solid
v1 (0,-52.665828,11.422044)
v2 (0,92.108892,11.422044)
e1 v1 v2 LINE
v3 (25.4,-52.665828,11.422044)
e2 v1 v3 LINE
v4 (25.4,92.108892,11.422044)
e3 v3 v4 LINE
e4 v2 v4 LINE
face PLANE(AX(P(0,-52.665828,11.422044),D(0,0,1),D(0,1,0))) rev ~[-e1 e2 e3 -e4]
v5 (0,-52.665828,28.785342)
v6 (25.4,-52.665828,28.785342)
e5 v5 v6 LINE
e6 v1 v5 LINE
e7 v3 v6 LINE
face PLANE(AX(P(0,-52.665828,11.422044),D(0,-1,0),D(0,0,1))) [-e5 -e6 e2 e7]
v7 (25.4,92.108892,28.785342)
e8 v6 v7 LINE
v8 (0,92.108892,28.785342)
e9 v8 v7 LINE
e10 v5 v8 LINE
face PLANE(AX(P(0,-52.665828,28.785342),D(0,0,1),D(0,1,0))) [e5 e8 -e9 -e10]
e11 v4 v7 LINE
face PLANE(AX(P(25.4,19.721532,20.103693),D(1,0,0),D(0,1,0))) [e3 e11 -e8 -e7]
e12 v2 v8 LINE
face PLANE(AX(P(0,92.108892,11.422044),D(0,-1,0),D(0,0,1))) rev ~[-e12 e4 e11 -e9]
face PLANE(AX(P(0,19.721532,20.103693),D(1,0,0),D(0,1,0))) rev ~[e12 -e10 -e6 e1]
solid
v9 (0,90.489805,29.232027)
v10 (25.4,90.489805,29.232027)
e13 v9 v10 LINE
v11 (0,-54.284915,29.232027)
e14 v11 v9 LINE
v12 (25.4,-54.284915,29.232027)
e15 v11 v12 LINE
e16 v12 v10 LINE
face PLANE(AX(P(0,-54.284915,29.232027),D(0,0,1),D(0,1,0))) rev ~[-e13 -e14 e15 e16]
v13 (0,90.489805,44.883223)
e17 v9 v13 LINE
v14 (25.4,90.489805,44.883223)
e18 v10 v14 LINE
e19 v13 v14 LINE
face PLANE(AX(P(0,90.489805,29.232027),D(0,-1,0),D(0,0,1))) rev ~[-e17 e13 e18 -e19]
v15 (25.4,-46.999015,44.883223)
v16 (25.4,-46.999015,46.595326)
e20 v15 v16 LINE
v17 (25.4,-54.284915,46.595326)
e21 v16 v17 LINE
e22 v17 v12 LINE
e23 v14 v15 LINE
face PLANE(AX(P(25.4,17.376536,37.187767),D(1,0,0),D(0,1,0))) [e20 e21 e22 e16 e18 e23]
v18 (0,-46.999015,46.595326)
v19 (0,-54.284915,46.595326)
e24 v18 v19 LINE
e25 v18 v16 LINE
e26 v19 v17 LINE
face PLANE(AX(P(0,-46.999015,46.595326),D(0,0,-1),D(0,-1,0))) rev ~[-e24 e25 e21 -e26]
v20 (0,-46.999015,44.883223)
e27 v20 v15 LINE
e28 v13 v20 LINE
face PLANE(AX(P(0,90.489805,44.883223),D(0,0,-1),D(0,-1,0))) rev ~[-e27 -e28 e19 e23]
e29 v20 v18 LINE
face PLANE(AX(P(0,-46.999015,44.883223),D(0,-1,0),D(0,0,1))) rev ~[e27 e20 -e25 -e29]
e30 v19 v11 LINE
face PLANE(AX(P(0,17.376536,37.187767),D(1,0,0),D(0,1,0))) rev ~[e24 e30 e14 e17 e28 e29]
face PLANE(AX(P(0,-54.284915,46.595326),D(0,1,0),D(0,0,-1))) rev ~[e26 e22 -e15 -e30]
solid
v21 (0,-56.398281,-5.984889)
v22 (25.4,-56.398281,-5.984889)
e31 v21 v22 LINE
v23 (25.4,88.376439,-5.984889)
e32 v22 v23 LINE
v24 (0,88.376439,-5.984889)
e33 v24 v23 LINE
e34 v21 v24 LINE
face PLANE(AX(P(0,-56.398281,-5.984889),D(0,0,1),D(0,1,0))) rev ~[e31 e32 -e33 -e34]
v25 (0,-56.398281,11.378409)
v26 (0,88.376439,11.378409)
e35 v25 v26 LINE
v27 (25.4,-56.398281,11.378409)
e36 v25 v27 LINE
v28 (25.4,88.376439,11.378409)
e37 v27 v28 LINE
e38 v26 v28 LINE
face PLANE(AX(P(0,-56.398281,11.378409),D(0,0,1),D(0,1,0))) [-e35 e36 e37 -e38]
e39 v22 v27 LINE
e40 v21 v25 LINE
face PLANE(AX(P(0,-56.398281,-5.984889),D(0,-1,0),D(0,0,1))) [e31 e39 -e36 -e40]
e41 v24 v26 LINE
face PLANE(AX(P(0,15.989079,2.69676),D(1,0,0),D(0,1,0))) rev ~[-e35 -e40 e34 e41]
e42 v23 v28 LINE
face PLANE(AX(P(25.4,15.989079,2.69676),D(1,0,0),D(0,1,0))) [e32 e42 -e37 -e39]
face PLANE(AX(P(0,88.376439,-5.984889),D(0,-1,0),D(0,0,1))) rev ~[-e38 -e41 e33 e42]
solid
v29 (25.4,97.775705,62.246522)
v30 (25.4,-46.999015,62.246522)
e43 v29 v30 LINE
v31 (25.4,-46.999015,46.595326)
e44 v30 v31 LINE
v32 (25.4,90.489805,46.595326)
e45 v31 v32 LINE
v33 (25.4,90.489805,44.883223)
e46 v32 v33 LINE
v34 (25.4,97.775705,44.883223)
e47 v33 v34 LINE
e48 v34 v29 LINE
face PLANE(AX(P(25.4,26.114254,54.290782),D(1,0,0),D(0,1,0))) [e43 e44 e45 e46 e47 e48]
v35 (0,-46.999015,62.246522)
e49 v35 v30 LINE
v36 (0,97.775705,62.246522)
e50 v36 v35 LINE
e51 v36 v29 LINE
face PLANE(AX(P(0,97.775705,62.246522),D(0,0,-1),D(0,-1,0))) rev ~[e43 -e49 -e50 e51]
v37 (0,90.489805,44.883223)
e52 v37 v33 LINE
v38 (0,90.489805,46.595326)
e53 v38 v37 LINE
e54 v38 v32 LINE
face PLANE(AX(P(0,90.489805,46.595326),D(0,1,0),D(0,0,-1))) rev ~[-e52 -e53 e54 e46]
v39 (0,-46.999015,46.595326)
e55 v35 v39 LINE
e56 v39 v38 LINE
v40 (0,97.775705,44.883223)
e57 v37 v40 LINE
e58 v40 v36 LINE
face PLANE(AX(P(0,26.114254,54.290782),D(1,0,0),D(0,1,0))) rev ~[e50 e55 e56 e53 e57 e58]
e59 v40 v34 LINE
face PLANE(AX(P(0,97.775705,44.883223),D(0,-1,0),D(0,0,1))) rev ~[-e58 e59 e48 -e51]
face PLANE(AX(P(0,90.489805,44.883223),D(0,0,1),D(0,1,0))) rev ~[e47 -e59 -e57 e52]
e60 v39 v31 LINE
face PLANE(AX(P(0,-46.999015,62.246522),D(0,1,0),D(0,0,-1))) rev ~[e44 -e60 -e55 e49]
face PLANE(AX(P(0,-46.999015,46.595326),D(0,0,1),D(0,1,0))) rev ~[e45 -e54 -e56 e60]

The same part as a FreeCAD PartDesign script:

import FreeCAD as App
import Part
import Sketcher

V = App.Vector
Q = App.Units.Quantity

doc = App.newDocument("Part")
params = doc.addObject("Spreadsheet::Sheet", "Params")
for row, (alias, value) in enumerate([
    ("pad1_length", "1 in"),
    ("pad2_length", "1 in"),
], start=1):
    params.set(f"A{row}", alias)
    params.set(f"B{row}", "=" + value)
    params.setAlias(f"B{row}", alias)

body = doc.addObject("PartDesign::Body", "Body")

# Sketch on YZ plane
sketch1 = body.newObject("Sketcher::SketchObject", "Sketch")
sketch1.AttachmentSupport = (doc.getObject("YZ_Plane"), [""])
sketch1.MapMode = "FlatFace"
sketch1.addGeometry([
    Part.LineSegment(V(-56.398281, 11.378409, 0), V(-56.398281, -5.984889, 0)),
    Part.LineSegment(V(-56.398281, -5.984889, 0), V(88.376439, -5.984889, 0)),
    Part.LineSegment(V(88.376439, -5.984889, 0), V(88.376439, 11.378409, 0)),
    Part.LineSegment(V(88.376439, 11.378409, 0), V(-56.398281, 11.378409, 0)),
], False)
sketch1.addConstraint([
    Sketcher.Constraint("Coincident", 0, 2, 1, 1),
    Sketcher.Constraint("Coincident", 1, 2, 2, 1),
    Sketcher.Constraint("Coincident", 2, 2, 3, 1),
    Sketcher.Constraint("Coincident", 3, 2, 0, 1),
    Sketcher.Constraint("Vertical", 0),
    Sketcher.Constraint("Horizontal", 1),
    Sketcher.Constraint("Vertical", 2),
    Sketcher.Constraint("Horizontal", 3),
    Sketcher.Constraint("DistanceY", 0, 2, 0, 1, Q("17.363298 mm")),
    Sketcher.Constraint("DistanceX", 1, 1, 1, 2, Q("144.77472 mm")),
    Sketcher.Constraint("DistanceX", 0, 2, -1, 1, Q("56.398281 mm")),
    Sketcher.Constraint("DistanceY", 0, 2, -1, 1, Q("5.984889 mm")),
])
pad1 = body.newObject("PartDesign::Pad", "Pad")
pad1.Profile = sketch1
pad1.setExpression("Length", "Params.pad1_length")
body2 = doc.addObject("PartDesign::Body", "Body001")
body2.AllowCompound = True

# Sketch on YZ plane
sketch2 = body2.newObject("Sketcher::SketchObject", "Sketch001")
sketch2.AttachmentSupport = (doc.getObject("YZ_Plane001"), [""])
sketch2.MapMode = "FlatFace"
sketch2.addGeometry([
    Part.LineSegment(V(-52.665828, 28.785342, 0), V(-52.665828, 11.422044, 0)),  # 0
    Part.LineSegment(V(-52.665828, 11.422044, 0), V(92.108892, 11.422044, 0)),  # 1
    Part.LineSegment(V(92.108892, 11.422044, 0), V(92.108892, 28.785342, 0)),  # 2
    Part.LineSegment(V(92.108892, 28.785342, 0), V(-52.665828, 28.785342, 0)),  # 3
    Part.LineSegment(V(-54.284915, 29.232027, 0), V(90.489805, 29.232027, 0)),  # 4
    Part.LineSegment(V(90.489805, 29.232027, 0), V(90.489805, 44.883223, 0)),  # 5
    Part.LineSegment(V(90.489805, 44.883223, 0), V(-46.999015, 44.883223, 0)),  # 6
    Part.LineSegment(V(-46.999015, 44.883223, 0), V(-46.999015, 46.595326, 0)),  # 7
    Part.LineSegment(V(-46.999015, 46.595326, 0), V(-54.284915, 46.595326, 0)),  # 8
    Part.LineSegment(V(-54.284915, 46.595326, 0), V(-54.284915, 29.232027, 0)),  # 9
    Part.LineSegment(V(90.489805, 46.595326, 0), V(90.489805, 44.883223, 0)),  # 10
    Part.LineSegment(V(90.489805, 44.883223, 0), V(97.775705, 44.883223, 0)),  # 11
    Part.LineSegment(V(97.775705, 44.883223, 0), V(97.775705, 62.246522, 0)),  # 12
    Part.LineSegment(V(97.775705, 62.246522, 0), V(-46.999015, 62.246522, 0)),  # 13
    Part.LineSegment(V(-46.999015, 62.246522, 0), V(-46.999015, 46.595326, 0)),  # 14
    Part.LineSegment(V(-46.999015, 46.595326, 0), V(90.489805, 46.595326, 0)),  # 15
], False)
sketch2.addConstraint([
    Sketcher.Constraint("Coincident", 0, 2, 1, 1),
    Sketcher.Constraint("Coincident", 1, 2, 2, 1),
    Sketcher.Constraint("Coincident", 2, 2, 3, 1),
    Sketcher.Constraint("Coincident", 3, 2, 0, 1),
    Sketcher.Constraint("Coincident", 4, 2, 5, 1),
    Sketcher.Constraint("Coincident", 5, 2, 6, 1),
    Sketcher.Constraint("Coincident", 6, 2, 7, 1),
    Sketcher.Constraint("Coincident", 7, 2, 8, 1),
    Sketcher.Constraint("Coincident", 8, 2, 9, 1),
    Sketcher.Constraint("Coincident", 9, 2, 4, 1),
    Sketcher.Constraint("Coincident", 10, 2, 11, 1),
    Sketcher.Constraint("Coincident", 11, 2, 12, 1),
    Sketcher.Constraint("Coincident", 12, 2, 13, 1),
    Sketcher.Constraint("Coincident", 13, 2, 14, 1),
    Sketcher.Constraint("Coincident", 14, 2, 15, 1),
    Sketcher.Constraint("Coincident", 15, 2, 10, 1),
    Sketcher.Constraint("Vertical", 0),
    Sketcher.Constraint("Horizontal", 1),
    Sketcher.Constraint("Vertical", 2),
    Sketcher.Constraint("Horizontal", 3),
    Sketcher.Constraint("Horizontal", 4),
    Sketcher.Constraint("Vertical", 5),
    Sketcher.Constraint("Horizontal", 6),
    Sketcher.Constraint("Vertical", 7),
    Sketcher.Constraint("Horizontal", 8),
    Sketcher.Constraint("Vertical", 9),
    Sketcher.Constraint("Vertical", 10),
    Sketcher.Constraint("Horizontal", 11),
    Sketcher.Constraint("Vertical", 12),
    Sketcher.Constraint("Horizontal", 13),
    Sketcher.Constraint("Vertical", 14),
    Sketcher.Constraint("Horizontal", 15),
    Sketcher.Constraint("Coincident", 10, 2, 5, 2),
    Sketcher.Constraint("Coincident", 14, 2, 7, 2),
    Sketcher.Constraint("Equal", 3, 4),
    Sketcher.Constraint("Equal", 8, 11),
    Sketcher.Constraint("Equal", 2, 9),
    Sketcher.Constraint("Equal", 9, 12),
    Sketcher.Constraint("DistanceX", 8, 2, 8, 1, Q("7.2859 mm")),
    Sketcher.Constraint("DistanceY", 0, 2, 0, 1, Q("17.363298 mm")),
    Sketcher.Constraint("DistanceX", 1, 1, 1, 2, Q("144.77472 mm")),
    Sketcher.Constraint("DistanceY", 5, 1, 5, 2, Q("15.651196 mm")),
    Sketcher.Constraint("DistanceX", -1, 1, 1, 2, Q("92.108892 mm")),
    Sketcher.Constraint("DistanceY", -1, 1, 2, 2, Q("28.785342 mm")),
    Sketcher.Constraint("DistanceY", 2, 2, 5, 2, Q("16.097881 mm")),
    Sketcher.Constraint("DistanceX", -1, 1, 4, 2, Q("90.489805 mm")),
])
pad2 = body2.newObject("PartDesign::Pad", "Pad001")
pad2.Profile = sketch2
pad2.setExpression("Length", "Params.pad2_length")

doc.recompute()
